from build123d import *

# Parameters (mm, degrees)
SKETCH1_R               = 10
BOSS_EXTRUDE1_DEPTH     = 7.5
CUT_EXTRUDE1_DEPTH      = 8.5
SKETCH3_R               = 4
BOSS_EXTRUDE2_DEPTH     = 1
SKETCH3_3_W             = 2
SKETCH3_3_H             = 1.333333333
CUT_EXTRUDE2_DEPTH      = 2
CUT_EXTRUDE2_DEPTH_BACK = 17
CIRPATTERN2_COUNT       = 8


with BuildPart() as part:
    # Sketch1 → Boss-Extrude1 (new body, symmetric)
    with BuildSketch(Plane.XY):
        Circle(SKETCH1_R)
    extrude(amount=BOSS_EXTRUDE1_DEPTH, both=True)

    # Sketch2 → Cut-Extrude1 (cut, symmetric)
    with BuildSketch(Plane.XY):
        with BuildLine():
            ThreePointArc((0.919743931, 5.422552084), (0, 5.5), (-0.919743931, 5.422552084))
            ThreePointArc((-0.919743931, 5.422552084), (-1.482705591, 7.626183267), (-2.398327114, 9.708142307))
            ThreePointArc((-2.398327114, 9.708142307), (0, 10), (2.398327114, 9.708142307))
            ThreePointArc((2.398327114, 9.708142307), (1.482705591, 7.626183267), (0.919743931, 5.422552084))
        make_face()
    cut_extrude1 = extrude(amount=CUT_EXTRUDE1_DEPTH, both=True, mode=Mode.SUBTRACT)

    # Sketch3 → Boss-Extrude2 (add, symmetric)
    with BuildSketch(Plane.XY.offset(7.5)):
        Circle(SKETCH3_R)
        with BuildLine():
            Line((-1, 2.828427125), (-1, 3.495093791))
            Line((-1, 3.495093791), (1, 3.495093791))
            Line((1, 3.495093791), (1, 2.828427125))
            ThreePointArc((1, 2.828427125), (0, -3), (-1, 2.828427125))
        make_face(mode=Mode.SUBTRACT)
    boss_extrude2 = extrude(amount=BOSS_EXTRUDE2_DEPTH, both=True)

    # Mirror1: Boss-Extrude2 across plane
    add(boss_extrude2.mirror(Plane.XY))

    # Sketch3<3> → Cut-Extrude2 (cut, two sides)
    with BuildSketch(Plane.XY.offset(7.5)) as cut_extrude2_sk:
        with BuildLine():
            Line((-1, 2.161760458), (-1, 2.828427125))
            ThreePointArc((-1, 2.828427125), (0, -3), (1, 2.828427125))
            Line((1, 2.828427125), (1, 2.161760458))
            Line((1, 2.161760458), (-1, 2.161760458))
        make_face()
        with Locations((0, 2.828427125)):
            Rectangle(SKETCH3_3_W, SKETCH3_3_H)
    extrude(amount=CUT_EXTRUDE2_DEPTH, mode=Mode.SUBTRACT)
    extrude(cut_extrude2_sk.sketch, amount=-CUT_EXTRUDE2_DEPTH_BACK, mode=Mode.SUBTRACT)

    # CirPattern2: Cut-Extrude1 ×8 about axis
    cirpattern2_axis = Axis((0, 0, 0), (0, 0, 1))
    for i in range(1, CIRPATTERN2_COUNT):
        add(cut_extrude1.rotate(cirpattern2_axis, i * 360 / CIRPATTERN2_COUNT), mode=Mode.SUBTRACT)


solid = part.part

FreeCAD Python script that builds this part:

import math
import FreeCAD as App
import Part
import Sketcher

V = App.Vector

doc = App.newDocument("Part")
body = doc.addObject("PartDesign::Body", "Body")

sketch1 = body.newObject("Sketcher::SketchObject", "Sketch")
sketch1.AttachmentSupport = (doc.getObject("XY_Plane"), [""])
sketch1.MapMode = "FlatFace"
sketch1.addGeometry(Part.Circle(V(0, 0, 0), V(0, 0, 1), 10), False)
sketch1.addConstraint(Sketcher.Constraint("Coincident", 0, 3, -1, 1))
sketch1.addConstraint(Sketcher.Constraint("Diameter", 0, 20.0))
pad1 = body.newObject("PartDesign::Pad", "Pad")
pad1.Profile = sketch1
pad1.Length = 15
pad1.Midplane = True

sketch2 = body.newObject("Sketcher::SketchObject", "Sketch001")
sketch2.AttachmentSupport = (doc.getObject("XY_Plane"), [""])
sketch2.MapMode = "FlatFace"
sketch2.addGeometry(Part.ArcOfCircle(Part.Circle(V(0, 0, 0), V(0, 0, 1), 5.5), math.radians(80.37), math.radians(99.63)), False)
sketch2.addGeometry(Part.ArcOfCircle(Part.Circle(V(14.6, 3.1, 0), V(0, 0, 1), 13.9), math.radians(151.56), math.radians(170.37)), False)
sketch2.addGeometry(Part.ArcOfCircle(Part.Circle(V(0, 0, 0), V(0, 0, 1), 10), math.radians(76), math.radians(104)), False)
sketch2.addGeometry(Part.ArcOfCircle(Part.Circle(V(-14.6, 3.1, 0), V(0, 0, 1), 13.9), math.radians(9.63), math.radians(28.44)), False)
sketch2.addConstraint(Sketcher.Constraint("Coincident", 0, 1, 1, 2))
sketch2.addConstraint(Sketcher.Constraint("Coincident", 1, 1, 2, 1))
sketch2.addConstraint(Sketcher.Constraint("Coincident", 2, 2, 3, 2))
sketch2.addConstraint(Sketcher.Constraint("Coincident", 3, 1, 0, 2))
sketch2.addConstraint(Sketcher.Constraint("Coincident", 0, 3, -1, 1))
sketch2.addConstraint(Sketcher.Constraint("Coincident", 2, 3, -1, 1))
sketch2.addConstraint(Sketcher.Constraint("Equal", 1, 3))
sketch2.addConstraint(Sketcher.Constraint("Symmetric", 1, 3, 3, 3, -2))
sketch2.addConstraint(Sketcher.Constraint("Radius", 2, 10.0))
sketch2.addConstraint(Sketcher.Constraint("Radius", 0, 5.5))
sketch2.addConstraint(Sketcher.Constraint("Radius", 1, 13.866211))
sketch2.addConstraint(Sketcher.Constraint("DistanceX", -1, 1, 1, 3, 14.590699))
sketch2.addConstraint(Sketcher.Constraint("DistanceY", -1, 1, 1, 3, 3.103759))
pocket1 = body.newObject("PartDesign::Pocket", "Pocket")
pocket1.Profile = sketch2
pocket1.Length = 17
pocket1.Midplane = True

sketch3 = body.newObject("Sketcher::SketchObject", "Sketch002")
sketch3.AttachmentSupport = (doc.getObject("XY_Plane"), [""])
sketch3.MapMode = "FlatFace"
sketch3.AttachmentOffset = App.Placement(V(0, 0, 7.5), App.Rotation())
sketch3.addGeometry(Part.Circle(V(0, 0, 0), V(0, 0, 1), 4), False)
sketch3.addGeometry(Part.ArcOfCircle(Part.Circle(V(0, 0, 0), V(0, 0, 1), 3), math.radians(109), math.radians(431)), False)
sketch3.addGeometry(Part.LineSegment(V(-1, 2.8, 0), V(-1, 3.5, 0)), False)
sketch3.addGeometry(Part.LineSegment(V(-1, 3.5, 0), V(1, 3.5, 0)), False)
sketch3.addGeometry(Part.LineSegment(V(1, 3.5, 0), V(1, 2.8, 0)), False)
sketch3.addConstraint(Sketcher.Constraint("Coincident", 1, 1, 2, 1))
sketch3.addConstraint(Sketcher.Constraint("Coincident", 2, 2, 3, 1))
sketch3.addConstraint(Sketcher.Constraint("Coincident", 3, 2, 4, 1))
sketch3.addConstraint(Sketcher.Constraint("Coincident", 4, 2, 1, 2))
sketch3.addConstraint(Sketcher.Constraint("Vertical", 2))
sketch3.addConstraint(Sketcher.Constraint("Horizontal", 3))
sketch3.addConstraint(Sketcher.Constraint("Vertical", 4))
sketch3.addConstraint(Sketcher.Constraint("Coincident", 0, 3, -1, 1))
sketch3.addConstraint(Sketcher.Constraint("Coincident", 1, 3, -1, 1))
sketch3.addConstraint(Sketcher.Constraint("Horizontal", 1, 1, 4, 2))
sketch3.addConstraint(Sketcher.Constraint("Diameter", 0, 8.0))
sketch3.addConstraint(Sketcher.Constraint("Radius", 1, 3.0))
sketch3.addConstraint(Sketcher.Constraint("DistanceX", 3, 1, 3, 2, 2.0))
sketch3.addConstraint(Sketcher.Constraint("DistanceY", 2, 1, 2, 2, 0.666667))
pad2 = body.newObject("PartDesign::Pad", "Pad001")
pad2.Profile = sketch3
pad2.Length = 2
pad2.Midplane = True
doc.recompute()

mirrored = body.newObject("PartDesign::Mirrored", "Mirrored")
mirrored.Originals = [pad2]
mirrored.MirrorPlane = (doc.getObject("XY_Plane"), [""])
body.Tip = mirrored

sketch4 = body.newObject("Sketcher::SketchObject", "Sketch003")
sketch4.AttachmentSupport = (doc.getObject("XY_Plane"), [""])
sketch4.MapMode = "FlatFace"
sketch4.AttachmentOffset = App.Placement(V(0, 0, 7.5), App.Rotation())
sketch4.addGeometry(Part.ArcOfCircle(Part.Circle(V(0, 0, 0), V(0, 0, 1), 3), math.radians(109), math.radians(431)), False)
sketch4.addGeometry(Part.LineSegment(V(1, 2.8, 0), V(1, 3.5, 0)), False)
sketch4.addGeometry(Part.LineSegment(V(1, 3.5, 0), V(-1, 3.5, 0)), False)
sketch4.addGeometry(Part.LineSegment(V(-1, 3.5, 0), V(-1, 2.8, 0)), False)
sketch4.addConstraint(Sketcher.Constraint("Coincident", 0, 2, 1, 1))
sketch4.addConstraint(Sketcher.Constraint("Coincident", 1, 2, 2, 1))
sketch4.addConstraint(Sketcher.Constraint("Coincident", 2, 2, 3, 1))
sketch4.addConstraint(Sketcher.Constraint("Coincident", 3, 2, 0, 1))
sketch4.addConstraint(Sketcher.Constraint("Vertical", 1))
sketch4.addConstraint(Sketcher.Constraint("Horizontal", 2))
sketch4.addConstraint(Sketcher.Constraint("Vertical", 3))
sketch4.addConstraint(Sketcher.Constraint("Coincident", 0, 3, -1, 1))
sketch4.addConstraint(Sketcher.Constraint("Horizontal", 0, 2, 3, 2))
sketch4.addConstraint(Sketcher.Constraint("Radius", 0, 3.0))
sketch4.addConstraint(Sketcher.Constraint("DistanceX", 2, 2, 2, 1, 2.0))
sketch4.addConstraint(Sketcher.Constraint("DistanceY", 1, 1, 1, 2, 0.666667))
pocket2 = body.newObject("PartDesign::Pocket", "Pocket001")
pocket2.Profile = sketch4
pocket2.Type = "ThroughAll"
pocket2.Midplane = True
doc.recompute()

polarpattern = body.newObject("PartDesign::PolarPattern", "PolarPattern")
polarpattern.Originals = [pocket1]
polarpattern.Axis = (doc.getObject("Z_Axis"), [""])
polarpattern.Angle = 360
polarpattern.Occurrences = 8
body.Tip = polarpattern

doc.recompute()
